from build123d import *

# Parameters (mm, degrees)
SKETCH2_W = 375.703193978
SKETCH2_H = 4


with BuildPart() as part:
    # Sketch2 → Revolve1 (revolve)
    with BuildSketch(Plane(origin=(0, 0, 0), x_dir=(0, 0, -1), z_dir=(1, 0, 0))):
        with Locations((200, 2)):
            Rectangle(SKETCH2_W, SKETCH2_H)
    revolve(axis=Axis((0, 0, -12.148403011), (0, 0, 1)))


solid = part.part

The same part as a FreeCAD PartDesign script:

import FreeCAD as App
import Part
import Sketcher
from FreeCAD import Vector

doc = App.newDocument("Part")
body = doc.addObject("PartDesign::Body", "Body")

# Sketch on YZ plane
sketch1 = doc.addObject("Sketcher::SketchObject", "Sketch")
body.addObject(sketch1)
sketch1.AttachmentSupport = (doc.YZ_Plane, [""])
sketch1.MapMode = "FlatFace"
sketch1.addGeometry([
    Part.LineSegment(Vector(4, -12.1, 0), Vector(0, -12.1, 0)),
    Part.LineSegment(Vector(0, -12.1, 0), Vector(0, -387.9, 0)),
    Part.LineSegment(Vector(0, -387.9, 0), Vector(4, -387.9, 0)),
    Part.LineSegment(Vector(4, -387.9, 0), Vector(4, -12.1, 0)),
], False)
sketch1.addConstraint([
    Sketcher.Constraint("Coincident", 0, 2, 1, 1),
    Sketcher.Constraint("Coincident", 1, 2, 2, 1),
    Sketcher.Constraint("Coincident", 2, 2, 3, 1),
    Sketcher.Constraint("Coincident", 3, 2, 0, 1),
    Sketcher.Constraint("Horizontal", 0),
    Sketcher.Constraint("Vertical", 1),
    Sketcher.Constraint("Horizontal", 2),
    Sketcher.Constraint("Vertical", 3),
    Sketcher.Constraint("PointOnObject", 0, 2, -2),
    Sketcher.Constraint("DistanceX", 0, 2, 0, 1, 4.0),
    Sketcher.Constraint("DistanceY", 1, 2, 1, 1, 375.703194),
    Sketcher.Constraint("DistanceY", 0, 2, -1, 1, 12.148403),
])
revolution = doc.addObject("PartDesign::Revolution", "Revolution")
body.addObject(revolution)
revolution.Profile = sketch1
revolution.ReferenceAxis = (sketch1, ["V_Axis"])
revolution.Angle = 360

doc.recompute()
